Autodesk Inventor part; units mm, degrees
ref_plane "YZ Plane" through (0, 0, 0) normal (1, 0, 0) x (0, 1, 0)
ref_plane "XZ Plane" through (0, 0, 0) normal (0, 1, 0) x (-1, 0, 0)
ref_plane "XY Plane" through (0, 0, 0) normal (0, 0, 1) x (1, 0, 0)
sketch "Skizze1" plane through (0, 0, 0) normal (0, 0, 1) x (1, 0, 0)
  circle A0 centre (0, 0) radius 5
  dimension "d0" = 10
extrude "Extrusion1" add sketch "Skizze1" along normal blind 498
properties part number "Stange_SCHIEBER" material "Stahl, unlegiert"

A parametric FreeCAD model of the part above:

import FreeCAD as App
import Part
import Sketcher
from FreeCAD import Vector

doc = App.newDocument("Part")
body = doc.addObject("PartDesign::Body", "Body")

# Sketch on XY plane
sketch1 = doc.addObject("Sketcher::SketchObject", "Sketch")
body.addObject(sketch1)
sketch1.AttachmentSupport = (doc.XY_Plane, [""])
sketch1.MapMode = "FlatFace"
sketch1.addGeometry(Part.Circle(Vector(0, 0, 0), Vector(0, 0, 1), 5), False)
sketch1.addConstraint(Sketcher.Constraint("Coincident", 0, 3, -1, 1))
sketch1.addConstraint(Sketcher.Constraint("Diameter", 0, 10.0))
pad1 = doc.addObject("PartDesign::Pad", "Pad")
body.addObject(pad1)
pad1.Profile = sketch1
pad1.Length = 498

doc.recompute()
